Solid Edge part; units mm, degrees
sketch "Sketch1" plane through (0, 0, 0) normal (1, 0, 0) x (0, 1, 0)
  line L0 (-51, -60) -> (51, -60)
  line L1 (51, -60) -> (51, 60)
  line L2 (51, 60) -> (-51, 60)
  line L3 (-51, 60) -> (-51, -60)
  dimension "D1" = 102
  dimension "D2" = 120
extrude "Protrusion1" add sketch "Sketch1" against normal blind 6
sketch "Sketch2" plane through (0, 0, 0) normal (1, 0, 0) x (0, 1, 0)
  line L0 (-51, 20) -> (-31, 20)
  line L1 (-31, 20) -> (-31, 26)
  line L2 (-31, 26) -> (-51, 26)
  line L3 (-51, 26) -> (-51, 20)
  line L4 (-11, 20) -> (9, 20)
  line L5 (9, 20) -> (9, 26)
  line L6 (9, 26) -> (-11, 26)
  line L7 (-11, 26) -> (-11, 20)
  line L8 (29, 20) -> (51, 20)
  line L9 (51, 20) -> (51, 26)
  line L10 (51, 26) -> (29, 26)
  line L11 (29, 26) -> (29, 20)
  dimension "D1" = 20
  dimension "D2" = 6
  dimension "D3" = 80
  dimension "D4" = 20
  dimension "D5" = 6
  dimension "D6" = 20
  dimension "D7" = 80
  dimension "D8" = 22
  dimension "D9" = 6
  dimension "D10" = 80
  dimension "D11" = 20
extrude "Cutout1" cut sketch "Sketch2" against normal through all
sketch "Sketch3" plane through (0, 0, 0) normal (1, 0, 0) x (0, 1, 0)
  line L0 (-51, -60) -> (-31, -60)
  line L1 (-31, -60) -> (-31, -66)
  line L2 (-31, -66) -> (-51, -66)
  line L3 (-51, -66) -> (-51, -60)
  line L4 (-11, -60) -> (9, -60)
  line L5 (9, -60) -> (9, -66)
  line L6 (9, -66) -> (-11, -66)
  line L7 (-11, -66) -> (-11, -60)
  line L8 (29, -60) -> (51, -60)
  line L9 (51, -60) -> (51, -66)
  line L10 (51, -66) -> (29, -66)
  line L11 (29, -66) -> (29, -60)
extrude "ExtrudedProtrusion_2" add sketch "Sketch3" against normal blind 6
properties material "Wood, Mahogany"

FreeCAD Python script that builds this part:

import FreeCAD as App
import Part
import Sketcher


def add_polygon(sketch, points):
    """Adds a closed chain of lines whose ends are joined by coincident constraints."""
    first, n = sketch.GeometryCount, len(points)
    for a, b in zip(points, points[1:] + points[:1]):
        sketch.addGeometry(Part.LineSegment(App.Vector(*a, 0), App.Vector(*b, 0)), False)
    for i in range(n):
        sketch.addConstraint(Sketcher.Constraint("Coincident", first + i, 2, first + (i + 1) % n, 1))

doc = App.newDocument("Part")
params = doc.addObject("Spreadsheet::Sheet", "Params")
for row, (alias, value) in enumerate([
    ("sketch1_height", "120 mm"),
    ("pad1_length", "6 mm"),
    ("sketch2_width", "22 mm"),
    ("sketch2_height", "6 mm"),
    ("sketch3_width", "20 mm"),
    ("sketch3_width2", "22 mm"),
    ("sketch3_height", "6 mm"),
    ("pad2_length", "6 mm"),
], start=1):
    params.set(f"A{row}", alias)
    params.set(f"B{row}", "=" + value)
    params.setAlias(f"B{row}", alias)

body = doc.addObject("PartDesign::Body", "Body")

# Sketch on YZ plane
sketch1 = body.newObject("Sketcher::SketchObject", "Sketch")
sketch1.AttachmentSupport = (doc.getObject("YZ_Plane"), [""])
sketch1.MapMode = "FlatFace"
add_polygon(sketch1, [(-51, 60), (-51, -60), (51, -60), (51, 60)])  # lines 0-3
sketch1.addConstraint([
    Sketcher.Constraint("Vertical", 0),
    Sketcher.Constraint("Horizontal", 1),
    Sketcher.Constraint("Vertical", 2),
    Sketcher.Constraint("Horizontal", 3),
    Sketcher.Constraint("Symmetric", 0, 2, 2, 2, -1, 1),
    Sketcher.Constraint("DistanceX", 0, 2, -1, 1, 51.0),
    Sketcher.Constraint("DistanceY", 0, 2, 0, 1, 120.0),
])
sketch1.setExpression("Constraints[10]", "Params.sketch1_height")
pad1 = body.newObject("PartDesign::Pad", "Pad")
pad1.Profile = sketch1
pad1.setExpression("Length", "Params.pad1_length")
pad1.Reversed = True

# Sketch on YZ plane
sketch2 = body.newObject("Sketcher::SketchObject", "Sketch001")
sketch2.AttachmentSupport = (doc.getObject("YZ_Plane"), [""])
sketch2.MapMode = "FlatFace"
add_polygon(sketch2, [(-51, 26), (-51, 20), (-31, 20), (-31, 26)])  # lines 0-3
add_polygon(sketch2, [(-11, 26), (-11, 20), (9, 20), (9, 26)])  # lines 4-7
add_polygon(sketch2, [(29, 26), (29, 20), (51, 20), (51, 26)])  # lines 8-11
sketch2.addConstraint([
    Sketcher.Constraint("Vertical", 0),
    Sketcher.Constraint("Horizontal", 1),
    Sketcher.Constraint("Vertical", 2),
    Sketcher.Constraint("Horizontal", 3),
    Sketcher.Constraint("Vertical", 4),
    Sketcher.Constraint("Horizontal", 5),
    Sketcher.Constraint("Vertical", 6),
    Sketcher.Constraint("Horizontal", 7),
    Sketcher.Constraint("Vertical", 8),
    Sketcher.Constraint("Horizontal", 9),
    Sketcher.Constraint("Vertical", 10),
    Sketcher.Constraint("Horizontal", 11),
    Sketcher.Constraint("Symmetric", 0, 2, 9, 2, -2),
    Sketcher.Constraint("Horizontal", 1, 2, 4, 2),
    Sketcher.Constraint("Horizontal", 3, 2, 6, 2),
    Sketcher.Constraint("Horizontal", 7, 2, 10, 2),
    Sketcher.Constraint("Equal", 3, 5),
    Sketcher.Constraint("DistanceX", 0, 2, -1, 1, 51.0),
    Sketcher.Constraint("DistanceX", 1, 2, -1, 1, 31.0),
    Sketcher.Constraint("DistanceX", 9, 1, 9, 2, 22.0),
    Sketcher.Constraint("DistanceY", 0, 2, 0, 1, 6.0),
    Sketcher.Constraint("DistanceY", -1, 1, 0, 2, 20.0),
    Sketcher.Constraint("DistanceX", 4, 2, -1, 1, 11.0),
])
sketch2.setExpression("Constraints[31]", "Params.sketch2_width")
sketch2.setExpression("Constraints[32]", "Params.sketch2_height")
pocket1 = body.newObject("PartDesign::Pocket", "Pocket")
pocket1.Profile = sketch2
pocket1.Type = "ThroughAll"

# Sketch on YZ plane
sketch3 = body.newObject("Sketcher::SketchObject", "Sketch002")
sketch3.AttachmentSupport = (doc.getObject("YZ_Plane"), [""])
sketch3.MapMode = "FlatFace"
add_polygon(sketch3, [(-31, -60), (-51, -60), (-51, -66), (-31, -66)])  # lines 0-3
add_polygon(sketch3, [(9, -60), (-11, -60), (-11, -66), (9, -66)])  # lines 4-7
add_polygon(sketch3, [(51, -60), (29, -60), (29, -66), (51, -66)])  # lines 8-11
sketch3.addConstraint([
    Sketcher.Constraint("Horizontal", 0),
    Sketcher.Constraint("Vertical", 1),
    Sketcher.Constraint("Horizontal", 2),
    Sketcher.Constraint("Vertical", 3),
    Sketcher.Constraint("Horizontal", 4),
    Sketcher.Constraint("Vertical", 5),
    Sketcher.Constraint("Horizontal", 6),
    Sketcher.Constraint("Vertical", 7),
    Sketcher.Constraint("Horizontal", 8),
    Sketcher.Constraint("Vertical", 9),
    Sketcher.Constraint("Horizontal", 10),
    Sketcher.Constraint("Vertical", 11),
    Sketcher.Constraint("Symmetric", 1, 2, 10, 2, -2),
    Sketcher.Constraint("Horizontal", 3, 2, 4, 2),
    Sketcher.Constraint("Horizontal", 2, 2, 5, 2),
    Sketcher.Constraint("Horizontal", 7, 2, 8, 2),
    Sketcher.Constraint("Equal", 2, 4),
    Sketcher.Constraint("DistanceX", 0, 2, 0, 1, 20.0),
    Sketcher.Constraint("DistanceX", 8, 2, 8, 1, 22.0),
    Sketcher.Constraint("DistanceY", 1, 2, 1, 1, 6.0),
    Sketcher.Constraint("DistanceX", 0, 2, -1, 1, 51.0),
    Sketcher.Constraint("DistanceY", 0, 2, -1, 1, 60.0),
    Sketcher.Constraint("DistanceX", 4, 2, -1, 1, 11.0),
])
sketch3.setExpression("Constraints[29]", "Params.sketch3_width")
sketch3.setExpression("Constraints[30]", "Params.sketch3_width2")
sketch3.setExpression("Constraints[31]", "Params.sketch3_height")
pad2 = body.newObject("PartDesign::Pad", "Pad001")
pad2.Profile = sketch3
pad2.setExpression("Length", "Params.pad2_length")
pad2.Reversed = True

doc.recompute()
